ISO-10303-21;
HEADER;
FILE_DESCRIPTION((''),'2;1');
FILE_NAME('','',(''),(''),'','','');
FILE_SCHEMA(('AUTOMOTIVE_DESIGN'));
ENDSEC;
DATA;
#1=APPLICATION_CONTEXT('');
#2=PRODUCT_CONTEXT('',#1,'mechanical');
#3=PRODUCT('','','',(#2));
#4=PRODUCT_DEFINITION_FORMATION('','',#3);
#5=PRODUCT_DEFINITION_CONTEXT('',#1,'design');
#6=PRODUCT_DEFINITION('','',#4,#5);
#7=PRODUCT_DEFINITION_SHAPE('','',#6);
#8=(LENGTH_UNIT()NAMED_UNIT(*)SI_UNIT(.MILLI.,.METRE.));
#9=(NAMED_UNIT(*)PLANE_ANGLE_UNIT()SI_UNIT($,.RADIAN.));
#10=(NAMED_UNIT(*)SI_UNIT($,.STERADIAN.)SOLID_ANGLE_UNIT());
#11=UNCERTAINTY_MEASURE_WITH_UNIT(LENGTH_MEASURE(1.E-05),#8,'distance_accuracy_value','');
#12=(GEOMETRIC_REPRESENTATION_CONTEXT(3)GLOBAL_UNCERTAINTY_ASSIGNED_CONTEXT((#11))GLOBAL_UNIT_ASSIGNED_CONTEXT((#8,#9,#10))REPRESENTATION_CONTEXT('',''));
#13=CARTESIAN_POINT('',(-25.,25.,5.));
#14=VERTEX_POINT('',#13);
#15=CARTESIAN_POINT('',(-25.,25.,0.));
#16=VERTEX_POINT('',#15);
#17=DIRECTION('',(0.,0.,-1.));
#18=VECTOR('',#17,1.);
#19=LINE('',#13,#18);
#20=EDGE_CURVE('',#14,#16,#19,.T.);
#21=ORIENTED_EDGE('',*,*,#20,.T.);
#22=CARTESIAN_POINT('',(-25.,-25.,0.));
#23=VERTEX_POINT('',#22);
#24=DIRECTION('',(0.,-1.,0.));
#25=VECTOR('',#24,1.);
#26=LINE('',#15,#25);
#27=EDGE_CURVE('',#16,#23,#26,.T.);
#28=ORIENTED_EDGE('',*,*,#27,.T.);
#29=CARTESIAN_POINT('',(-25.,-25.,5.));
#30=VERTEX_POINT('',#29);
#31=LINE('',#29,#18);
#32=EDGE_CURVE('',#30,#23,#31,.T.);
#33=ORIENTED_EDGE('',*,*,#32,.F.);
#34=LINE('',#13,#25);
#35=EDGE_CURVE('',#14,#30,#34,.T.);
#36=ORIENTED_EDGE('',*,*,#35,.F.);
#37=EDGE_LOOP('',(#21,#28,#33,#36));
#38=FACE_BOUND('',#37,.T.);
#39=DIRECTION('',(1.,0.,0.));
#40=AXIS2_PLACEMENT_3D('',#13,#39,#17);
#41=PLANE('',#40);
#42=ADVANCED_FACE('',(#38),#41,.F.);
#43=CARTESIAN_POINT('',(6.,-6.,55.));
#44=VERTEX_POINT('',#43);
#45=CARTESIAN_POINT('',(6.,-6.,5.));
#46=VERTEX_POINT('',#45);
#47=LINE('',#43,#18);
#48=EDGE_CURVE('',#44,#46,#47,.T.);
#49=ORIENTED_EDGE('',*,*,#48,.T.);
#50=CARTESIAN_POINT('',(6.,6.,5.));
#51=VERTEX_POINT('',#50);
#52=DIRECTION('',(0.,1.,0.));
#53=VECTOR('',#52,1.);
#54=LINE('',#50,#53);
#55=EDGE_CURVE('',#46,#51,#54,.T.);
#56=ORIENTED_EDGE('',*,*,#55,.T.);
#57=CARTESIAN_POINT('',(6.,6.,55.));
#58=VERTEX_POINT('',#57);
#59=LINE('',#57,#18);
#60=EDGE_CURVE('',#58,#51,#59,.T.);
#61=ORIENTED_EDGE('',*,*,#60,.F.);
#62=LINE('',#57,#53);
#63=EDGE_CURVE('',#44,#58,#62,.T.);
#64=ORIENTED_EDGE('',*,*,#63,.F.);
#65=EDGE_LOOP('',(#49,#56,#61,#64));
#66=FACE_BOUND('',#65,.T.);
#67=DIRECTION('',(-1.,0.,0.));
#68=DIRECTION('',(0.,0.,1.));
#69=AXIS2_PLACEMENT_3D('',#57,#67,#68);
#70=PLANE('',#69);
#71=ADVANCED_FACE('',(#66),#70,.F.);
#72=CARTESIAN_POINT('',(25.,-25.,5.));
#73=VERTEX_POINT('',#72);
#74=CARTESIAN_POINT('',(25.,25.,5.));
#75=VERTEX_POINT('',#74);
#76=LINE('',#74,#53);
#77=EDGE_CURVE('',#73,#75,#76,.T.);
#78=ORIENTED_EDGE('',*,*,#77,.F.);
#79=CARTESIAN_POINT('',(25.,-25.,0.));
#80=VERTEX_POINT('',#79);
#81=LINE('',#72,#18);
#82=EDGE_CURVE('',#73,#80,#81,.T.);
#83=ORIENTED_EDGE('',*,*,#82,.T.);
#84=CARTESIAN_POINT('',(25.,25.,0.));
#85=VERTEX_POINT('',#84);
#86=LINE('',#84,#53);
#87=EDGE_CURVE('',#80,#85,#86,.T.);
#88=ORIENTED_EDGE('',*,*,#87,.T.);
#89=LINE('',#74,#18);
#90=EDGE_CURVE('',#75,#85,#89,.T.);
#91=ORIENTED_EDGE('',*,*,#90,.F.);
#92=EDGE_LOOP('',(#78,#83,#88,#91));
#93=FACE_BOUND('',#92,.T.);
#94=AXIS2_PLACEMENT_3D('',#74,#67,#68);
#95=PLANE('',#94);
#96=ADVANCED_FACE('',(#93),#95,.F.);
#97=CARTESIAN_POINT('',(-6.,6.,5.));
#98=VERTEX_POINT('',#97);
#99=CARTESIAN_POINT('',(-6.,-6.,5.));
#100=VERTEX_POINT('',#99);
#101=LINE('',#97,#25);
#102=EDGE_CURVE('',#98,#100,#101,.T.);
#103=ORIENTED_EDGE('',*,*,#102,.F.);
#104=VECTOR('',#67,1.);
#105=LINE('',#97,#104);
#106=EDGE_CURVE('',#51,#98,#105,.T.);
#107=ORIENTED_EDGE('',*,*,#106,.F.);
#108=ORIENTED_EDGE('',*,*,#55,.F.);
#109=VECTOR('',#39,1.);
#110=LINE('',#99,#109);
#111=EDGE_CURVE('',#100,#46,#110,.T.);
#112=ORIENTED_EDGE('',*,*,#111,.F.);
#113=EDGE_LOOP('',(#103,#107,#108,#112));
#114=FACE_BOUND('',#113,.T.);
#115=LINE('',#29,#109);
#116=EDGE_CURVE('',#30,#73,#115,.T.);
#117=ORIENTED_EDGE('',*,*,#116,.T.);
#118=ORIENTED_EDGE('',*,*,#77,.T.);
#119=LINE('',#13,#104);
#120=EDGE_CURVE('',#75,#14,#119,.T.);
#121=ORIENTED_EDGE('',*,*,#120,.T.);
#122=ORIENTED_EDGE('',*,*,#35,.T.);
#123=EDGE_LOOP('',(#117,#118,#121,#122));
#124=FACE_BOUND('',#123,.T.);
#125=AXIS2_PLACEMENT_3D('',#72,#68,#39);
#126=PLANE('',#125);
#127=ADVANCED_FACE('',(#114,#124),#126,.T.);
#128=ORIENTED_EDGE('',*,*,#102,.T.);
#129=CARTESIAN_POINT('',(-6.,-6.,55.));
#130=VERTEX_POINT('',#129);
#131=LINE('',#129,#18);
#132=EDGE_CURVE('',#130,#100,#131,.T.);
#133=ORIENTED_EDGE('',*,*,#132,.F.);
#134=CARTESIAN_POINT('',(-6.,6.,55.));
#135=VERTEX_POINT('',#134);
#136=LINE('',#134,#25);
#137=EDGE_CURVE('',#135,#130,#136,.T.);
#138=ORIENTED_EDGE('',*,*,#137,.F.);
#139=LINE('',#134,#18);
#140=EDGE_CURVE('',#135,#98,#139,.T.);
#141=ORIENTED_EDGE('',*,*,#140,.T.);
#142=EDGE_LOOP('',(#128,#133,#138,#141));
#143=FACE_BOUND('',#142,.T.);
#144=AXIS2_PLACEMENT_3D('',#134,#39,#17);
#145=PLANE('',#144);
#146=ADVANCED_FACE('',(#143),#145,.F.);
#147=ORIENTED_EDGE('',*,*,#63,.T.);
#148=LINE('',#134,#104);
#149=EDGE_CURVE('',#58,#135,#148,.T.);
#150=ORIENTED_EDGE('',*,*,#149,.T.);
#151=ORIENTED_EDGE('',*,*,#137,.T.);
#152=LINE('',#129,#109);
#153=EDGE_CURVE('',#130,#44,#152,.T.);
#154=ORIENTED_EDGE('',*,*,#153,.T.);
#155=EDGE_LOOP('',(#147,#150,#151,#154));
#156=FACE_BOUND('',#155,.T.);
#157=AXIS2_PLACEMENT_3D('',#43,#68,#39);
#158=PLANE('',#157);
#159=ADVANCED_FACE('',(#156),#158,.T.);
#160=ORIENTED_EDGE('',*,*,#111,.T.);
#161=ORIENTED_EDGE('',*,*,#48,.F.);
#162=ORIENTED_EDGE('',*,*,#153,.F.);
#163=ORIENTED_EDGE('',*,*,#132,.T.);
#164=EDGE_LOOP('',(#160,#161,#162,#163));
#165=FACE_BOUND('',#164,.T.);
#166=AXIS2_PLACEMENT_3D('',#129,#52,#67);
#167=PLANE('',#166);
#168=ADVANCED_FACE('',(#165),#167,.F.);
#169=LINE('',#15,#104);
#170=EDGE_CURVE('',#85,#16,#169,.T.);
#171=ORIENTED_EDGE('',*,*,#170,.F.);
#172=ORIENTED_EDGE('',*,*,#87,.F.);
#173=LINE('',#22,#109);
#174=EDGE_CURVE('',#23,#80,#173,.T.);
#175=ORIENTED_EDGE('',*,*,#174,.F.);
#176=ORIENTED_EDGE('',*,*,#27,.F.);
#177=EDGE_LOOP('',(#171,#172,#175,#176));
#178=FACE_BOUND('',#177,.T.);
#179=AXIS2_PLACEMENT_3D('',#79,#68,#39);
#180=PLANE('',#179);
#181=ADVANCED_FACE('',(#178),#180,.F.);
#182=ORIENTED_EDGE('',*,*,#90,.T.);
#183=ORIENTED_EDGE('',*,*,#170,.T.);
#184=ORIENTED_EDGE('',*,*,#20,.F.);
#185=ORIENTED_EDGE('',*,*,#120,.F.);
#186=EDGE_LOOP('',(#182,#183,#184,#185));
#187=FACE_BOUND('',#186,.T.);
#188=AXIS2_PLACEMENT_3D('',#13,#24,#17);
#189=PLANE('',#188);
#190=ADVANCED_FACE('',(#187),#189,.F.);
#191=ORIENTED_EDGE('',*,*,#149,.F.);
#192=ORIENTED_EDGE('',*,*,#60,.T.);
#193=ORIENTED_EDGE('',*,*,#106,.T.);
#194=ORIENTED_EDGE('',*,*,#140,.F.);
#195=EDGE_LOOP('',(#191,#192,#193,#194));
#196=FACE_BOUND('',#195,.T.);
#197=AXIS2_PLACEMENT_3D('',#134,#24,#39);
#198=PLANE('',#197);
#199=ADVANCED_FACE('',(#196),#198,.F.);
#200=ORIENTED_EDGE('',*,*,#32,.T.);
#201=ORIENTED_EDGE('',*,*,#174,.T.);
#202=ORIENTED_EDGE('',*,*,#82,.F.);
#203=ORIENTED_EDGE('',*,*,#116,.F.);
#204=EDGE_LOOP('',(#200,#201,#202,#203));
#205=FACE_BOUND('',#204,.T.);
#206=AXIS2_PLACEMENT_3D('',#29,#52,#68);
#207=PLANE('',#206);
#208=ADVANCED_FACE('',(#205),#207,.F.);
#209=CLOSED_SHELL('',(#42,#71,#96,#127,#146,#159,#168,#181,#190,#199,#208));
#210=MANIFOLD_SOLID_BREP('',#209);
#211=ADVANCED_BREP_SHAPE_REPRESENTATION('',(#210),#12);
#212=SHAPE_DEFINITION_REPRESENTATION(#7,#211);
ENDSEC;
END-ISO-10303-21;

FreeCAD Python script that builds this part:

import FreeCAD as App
import Part
import Sketcher
Q = App.Units.Quantity


def add_polygon(sketch, points):
    """Adds a closed chain of lines whose ends are joined by coincident constraints."""
    first, n = sketch.GeometryCount, len(points)
    for a, b in zip(points, points[1:] + points[:1]):
        sketch.addGeometry(Part.LineSegment(App.Vector(*a, 0), App.Vector(*b, 0)), False)
    for i in range(n):
        sketch.addConstraint(Sketcher.Constraint("Coincident", first + i, 2, first + (i + 1) % n, 1))

doc = App.newDocument("Part")
body = doc.addObject("PartDesign::Body", "Body")

# Sketch on XY plane
sketch1 = doc.addObject("Sketcher::SketchObject", "Sketch")
body.addObject(sketch1)
sketch1.AttachmentSupport = (doc.XY_Plane, [""])
sketch1.MapMode = "FlatFace"
add_polygon(sketch1, [(-25, 25), (-25, -25), (25, -25), (25, 25)])  # lines 0-3
sketch1.addConstraint([
    Sketcher.Constraint("Vertical", 0),
    Sketcher.Constraint("Horizontal", 1),
    Sketcher.Constraint("Vertical", 2),
    Sketcher.Constraint("Horizontal", 3),
    Sketcher.Constraint("Symmetric", 0, 2, 2, 2, -1, 1),
    Sketcher.Constraint("Equal", 3, 0),
    Sketcher.Constraint("DistanceX", 1, 1, 1, 2, Q("50 mm")),
])
pad1 = doc.addObject("PartDesign::Pad", "Pad")
body.addObject(pad1)
pad1.Profile = sketch1
pad1.Length = 5

# Sketch on XY plane
sketch2 = doc.addObject("Sketcher::SketchObject", "Sketch001")
body.addObject(sketch2)
sketch2.AttachmentSupport = (doc.XY_Plane, [""])
sketch2.MapMode = "FlatFace"
sketch2.AttachmentOffset = App.Placement(App.Vector(0, 0, 5), App.Rotation())
add_polygon(sketch2, [(-6, 6), (-6, -6), (6, -6), (6, 6)])  # lines 0-3
sketch2.addConstraint([
    Sketcher.Constraint("Vertical", 0),
    Sketcher.Constraint("Horizontal", 1),
    Sketcher.Constraint("Vertical", 2),
    Sketcher.Constraint("Horizontal", 3),
    Sketcher.Constraint("Symmetric", 0, 2, 2, 2, -1, 1),
    Sketcher.Constraint("Equal", 3, 0),
    Sketcher.Constraint("DistanceX", 1, 1, 1, 2, Q("12 mm")),
])
pad2 = doc.addObject("PartDesign::Pad", "Pad001")
body.addObject(pad2)
pad2.Profile = sketch2
pad2.Length = 50

doc.recompute()
